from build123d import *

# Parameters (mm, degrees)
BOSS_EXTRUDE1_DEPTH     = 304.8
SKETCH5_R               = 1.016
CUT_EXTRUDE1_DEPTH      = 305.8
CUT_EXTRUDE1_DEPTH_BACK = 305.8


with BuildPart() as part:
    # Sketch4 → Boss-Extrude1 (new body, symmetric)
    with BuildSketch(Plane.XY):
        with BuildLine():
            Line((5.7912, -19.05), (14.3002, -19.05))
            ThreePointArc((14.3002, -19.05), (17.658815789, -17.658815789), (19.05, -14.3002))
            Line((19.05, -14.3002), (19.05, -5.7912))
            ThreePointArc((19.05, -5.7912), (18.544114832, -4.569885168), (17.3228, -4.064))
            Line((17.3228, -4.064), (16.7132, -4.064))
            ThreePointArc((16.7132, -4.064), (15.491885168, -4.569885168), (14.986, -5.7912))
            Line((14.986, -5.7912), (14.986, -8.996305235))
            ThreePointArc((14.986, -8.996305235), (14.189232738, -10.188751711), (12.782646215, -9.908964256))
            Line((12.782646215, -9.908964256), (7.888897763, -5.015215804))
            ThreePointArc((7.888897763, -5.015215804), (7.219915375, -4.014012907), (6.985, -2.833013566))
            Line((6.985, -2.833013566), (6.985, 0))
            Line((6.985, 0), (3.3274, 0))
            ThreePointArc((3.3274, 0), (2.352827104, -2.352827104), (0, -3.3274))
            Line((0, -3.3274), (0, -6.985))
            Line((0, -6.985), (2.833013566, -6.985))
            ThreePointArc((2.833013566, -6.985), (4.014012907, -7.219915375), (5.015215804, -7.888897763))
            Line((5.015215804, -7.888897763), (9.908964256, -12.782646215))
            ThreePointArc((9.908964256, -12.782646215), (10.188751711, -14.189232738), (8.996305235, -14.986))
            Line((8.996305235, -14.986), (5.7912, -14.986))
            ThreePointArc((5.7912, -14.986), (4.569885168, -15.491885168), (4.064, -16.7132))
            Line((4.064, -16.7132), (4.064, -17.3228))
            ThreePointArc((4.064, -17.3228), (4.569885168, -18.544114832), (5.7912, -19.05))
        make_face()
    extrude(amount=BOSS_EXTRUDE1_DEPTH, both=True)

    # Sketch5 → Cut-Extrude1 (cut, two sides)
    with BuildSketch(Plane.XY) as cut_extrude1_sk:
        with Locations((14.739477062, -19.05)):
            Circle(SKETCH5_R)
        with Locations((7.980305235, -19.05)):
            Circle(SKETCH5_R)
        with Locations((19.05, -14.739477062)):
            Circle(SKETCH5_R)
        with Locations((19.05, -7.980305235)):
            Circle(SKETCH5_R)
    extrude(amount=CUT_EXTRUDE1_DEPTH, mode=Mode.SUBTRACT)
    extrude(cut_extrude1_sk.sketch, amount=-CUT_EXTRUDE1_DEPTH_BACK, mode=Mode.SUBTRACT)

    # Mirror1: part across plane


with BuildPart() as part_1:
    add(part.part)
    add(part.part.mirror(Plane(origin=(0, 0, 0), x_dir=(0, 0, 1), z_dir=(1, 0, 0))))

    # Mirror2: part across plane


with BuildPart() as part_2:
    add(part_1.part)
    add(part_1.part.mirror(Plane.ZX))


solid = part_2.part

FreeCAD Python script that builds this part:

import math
import FreeCAD as App
import Part
import Sketcher

V = App.Vector
Q = App.Units.Quantity

doc = App.newDocument("Part")
params = doc.addObject("Spreadsheet::Sheet", "Params")
for row, (alias, value) in enumerate([
    ("sketch1_radius", "0.187 in"),
    ("sketch1_radius2", "0.068 in"),
    ("sketch1_radius3", "0.131 in"),
    ("sketch1_width", "0.335 in"),
    ("sketch1_width2", "0.024 in"),
    ("pad1_length", "24 in"),
    ("sketch2_diameter", "0.08 in"),
], start=1):
    params.set(f"A{row}", alias)
    params.set(f"B{row}", "=" + value)
    params.setAlias(f"B{row}", alias)

body = doc.addObject("PartDesign::Body", "Body")

sketch1 = doc.addObject("Sketcher::SketchObject", "Sketch")
body.addObject(sketch1)
sketch1.AttachmentSupport = (doc.XY_Plane, [""])
sketch1.MapMode = "FlatFace"
sketch1.addGeometry(Part.LineSegment(V(5.8, -19.1, 0), V(14.3, -19.1, 0)), False)
sketch1.addGeometry(Part.ArcOfCircle(Part.Circle(V(14.3, -14.3, 0), V(0, 0, 1), 4.7), math.radians(-90), math.radians(0)), False)
sketch1.addGeometry(Part.LineSegment(V(19.1, -14.3, 0), V(19.1, -5.8, 0)), False)
sketch1.addGeometry(Part.ArcOfCircle(Part.Circle(V(17.3, -5.8, 0), V(0, 0, 1), 1.7), math.radians(0), math.radians(90)), False)
sketch1.addGeometry(Part.LineSegment(V(17.3, -4.1, 0), V(16.7, -4.1, 0)), False)
sketch1.addGeometry(Part.ArcOfCircle(Part.Circle(V(16.7, -5.8, 0), V(0, 0, 1), 1.7), math.radians(90), math.radians(180)), False)
sketch1.addGeometry(Part.LineSegment(V(15, -5.8, 0), V(15, -9, 0)), False)
sketch1.addGeometry(Part.ArcOfCircle(Part.Circle(V(13.7, -9, 0), V(0, 0, 1), 1.3), math.radians(-135), math.radians(0)), False)
sketch1.addGeometry(Part.LineSegment(V(12.8, -9.9, 0), V(7.9, -5, 0)), False)
sketch1.addGeometry(Part.ArcOfCircle(Part.Circle(V(10.1, -2.8, 0), V(0, 0, 1), 3.1), math.radians(-180), math.radians(-135)), False)
sketch1.addGeometry(Part.LineSegment(V(7, -2.8, 0), V(7, 0, 0)), False)
sketch1.addGeometry(Part.LineSegment(V(7, 0, 0), V(3.3, 0, 0)), False)
sketch1.addGeometry(Part.ArcOfCircle(Part.Circle(V(0, 0, 0), V(0, 0, 1), 3.3), math.radians(-90), math.radians(0)), False)
sketch1.addGeometry(Part.LineSegment(V(0, -3.3, 0), V(0, -7, 0)), False)
sketch1.addGeometry(Part.LineSegment(V(0, -7, 0), V(2.8, -7, 0)), False)
sketch1.addGeometry(Part.ArcOfCircle(Part.Circle(V(2.8, -10.1, 0), V(0, 0, 1), 3.1), math.radians(45), math.radians(90)), False)
sketch1.addGeometry(Part.LineSegment(V(5, -7.9, 0), V(9.9, -12.8, 0)), False)
sketch1.addGeometry(Part.ArcOfCircle(Part.Circle(V(9, -13.7, 0), V(0, 0, 1), 1.3), math.radians(-90), math.radians(45)), False)
sketch1.addGeometry(Part.LineSegment(V(9, -15, 0), V(5.8, -15, 0)), False)
sketch1.addGeometry(Part.ArcOfCircle(Part.Circle(V(5.8, -16.7, 0), V(0, 0, 1), 1.7), math.radians(90), math.radians(180)), False)
sketch1.addGeometry(Part.LineSegment(V(4.1, -16.7, 0), V(4.1, -17.3, 0)), False)
sketch1.addGeometry(Part.ArcOfCircle(Part.Circle(V(5.8, -17.3, 0), V(0, 0, 1), 1.7), math.radians(-180), math.radians(-90)), False)
sketch1.addConstraint(Sketcher.Constraint("Tangent", 0, 2, 1, 1))
sketch1.addConstraint(Sketcher.Constraint("Tangent", 1, 2, 2, 1))
sketch1.addConstraint(Sketcher.Constraint("Tangent", 2, 2, 3, 1))
sketch1.addConstraint(Sketcher.Constraint("Tangent", 3, 2, 4, 1))
sketch1.addConstraint(Sketcher.Constraint("Tangent", 4, 2, 5, 1))
sketch1.addConstraint(Sketcher.Constraint("Tangent", 5, 2, 6, 1))
sketch1.addConstraint(Sketcher.Constraint("Tangent", 6, 2, 7, 2))
sketch1.addConstraint(Sketcher.Constraint("Tangent", 7, 1, 8, 1))
sketch1.addConstraint(Sketcher.Constraint("Tangent", 8, 2, 9, 2))
sketch1.addConstraint(Sketcher.Constraint("Tangent", 9, 1, 10, 1))
sketch1.addConstraint(Sketcher.Constraint("Coincident", 10, 2, 11, 1))
sketch1.addConstraint(Sketcher.Constraint("Coincident", 11, 2, 12, 2))
sketch1.addConstraint(Sketcher.Constraint("Coincident", 12, 1, 13, 1))
sketch1.addConstraint(Sketcher.Constraint("Coincident", 13, 2, 14, 1))
sketch1.addConstraint(Sketcher.Constraint("Tangent", 14, 2, 15, 2))
sketch1.addConstraint(Sketcher.Constraint("Tangent", 15, 1, 16, 1))
sketch1.addConstraint(Sketcher.Constraint("Tangent", 16, 2, 17, 2))
sketch1.addConstraint(Sketcher.Constraint("Tangent", 17, 1, 18, 1))
sketch1.addConstraint(Sketcher.Constraint("Tangent", 18, 2, 19, 1))
sketch1.addConstraint(Sketcher.Constraint("Tangent", 19, 2, 20, 1))
sketch1.addConstraint(Sketcher.Constraint("Tangent", 20, 2, 21, 1))
sketch1.addConstraint(Sketcher.Constraint("Tangent", 21, 2, 0, 1))
sketch1.addConstraint(Sketcher.Constraint("Horizontal", 0))
sketch1.addConstraint(Sketcher.Constraint("Vertical", 2))
sketch1.addConstraint(Sketcher.Constraint("Horizontal", 4))
sketch1.addConstraint(Sketcher.Constraint("Vertical", 6))
sketch1.addConstraint(Sketcher.Constraint("Vertical", 10))
sketch1.addConstraint(Sketcher.Constraint("Horizontal", 11))
sketch1.addConstraint(Sketcher.Constraint("Vertical", 13))
sketch1.addConstraint(Sketcher.Constraint("Horizontal", 14))
sketch1.addConstraint(Sketcher.Constraint("Horizontal", 18))
sketch1.addConstraint(Sketcher.Constraint("Vertical", 20))
sketch1.addConstraint(Sketcher.Constraint("Coincident", 12, 3, -1, 1))
sketch1.addConstraint(Sketcher.Constraint("Equal", 3, 5))
sketch1.addConstraint(Sketcher.Constraint("Equal", 9, 15))
sketch1.addConstraint(Sketcher.Constraint("Equal", 7, 17))
sketch1.addConstraint(Sketcher.Constraint("Equal", 5, 19))
sketch1.addConstraint(Sketcher.Constraint("Equal", 19, 21))
sketch1.addConstraint(Sketcher.Constraint("PointOnObject", 10, 2, -1))
sketch1.addConstraint(Sketcher.Constraint("PointOnObject", 12, 1, -2))
sketch1.addConstraint(Sketcher.Constraint("Parallel", 8, 16))
sketch1.addConstraint(Sketcher.Constraint("Equal", 0, 2))
sketch1.addConstraint(Sketcher.Constraint("Equal", 18, 6))
sketch1.addConstraint(Sketcher.Constraint("Equal", 14, 10))
sketch1.addConstraint(Sketcher.Constraint("Equal", 11, 13))
sketch1.addConstraint(Sketcher.Constraint("Equal", 4, 20))
sketch1.addConstraint(Sketcher.Constraint("Equal", 8, 16))
sketch1.addConstraint(Sketcher.Constraint("Radius", 1, Q("0.187 in")))
sketch1.addConstraint(Sketcher.Constraint("Radius", 3, Q("0.068 in")))
sketch1.addConstraint(Sketcher.Constraint("Radius", 12, Q("0.131 in")))
sketch1.addConstraint(Sketcher.Constraint("Radius", 9, Q("0.1215 in")))
sketch1.addConstraint(Sketcher.Constraint("DistanceX", 0, 1, 0, 2, Q("0.335 in")))
sketch1.addConstraint(Sketcher.Constraint("DistanceX", 4, 2, 4, 1, Q("0.024 in")))
sketch1.addConstraint(Sketcher.Constraint("DistanceX", 11, 2, 11, 1, Q("0.144 in")))
sketch1.addConstraint(Sketcher.Constraint("DistanceY", 0, 2, -1, 1, Q("0.75 in")))
sketch1.addConstraint(Sketcher.Constraint("DistanceX", 17, 3, 7, 3, Q("0.185 in")))
sketch1.addConstraint(Sketcher.Constraint("Radius", 7, Q("1.290695 mm")))
sketch1.setExpression("Constraints[47]", "Params.sketch1_radius")
sketch1.setExpression("Constraints[48]", "Params.sketch1_radius2")
sketch1.setExpression("Constraints[49]", "Params.sketch1_radius3")
sketch1.setExpression("Constraints[51]", "Params.sketch1_width")
sketch1.setExpression("Constraints[52]", "Params.sketch1_width2")
pad1 = doc.addObject("PartDesign::Pad", "Pad")
body.addObject(pad1)
pad1.Profile = sketch1
pad1.setExpression("Length", "Params.pad1_length")
pad1.Midplane = True

sketch2 = doc.addObject("Sketcher::SketchObject", "Sketch001")
body.addObject(sketch2)
sketch2.AttachmentSupport = (doc.XY_Plane, [""])
sketch2.MapMode = "FlatFace"
sketch2.addGeometry(Part.Circle(V(14.7, -19.1, 0), V(0, 0, 1), 1), False)
sketch2.addGeometry(Part.Circle(V(8, -19.1, 0), V(0, 0, 1), 1), False)
sketch2.addGeometry(Part.Circle(V(19.1, -14.7, 0), V(0, 0, 1), 1), False)
sketch2.addGeometry(Part.Circle(V(19.1, -8, 0), V(0, 0, 1), 1), False)
sketch2.addConstraint(Sketcher.Constraint("Equal", 0, 1))
sketch2.addConstraint(Sketcher.Constraint("Equal", 1, 2))
sketch2.addConstraint(Sketcher.Constraint("Equal", 2, 3))
sketch2.addConstraint(Sketcher.Constraint("Horizontal", 0, 3, 1, 3))
sketch2.addConstraint(Sketcher.Constraint("Vertical", 2, 3, 3, 3))
sketch2.addConstraint(Sketcher.Constraint("Diameter", 0, Q("0.08 in")))
sketch2.addConstraint(Sketcher.Constraint("DistanceY", 0, 3, -1, 1, Q("0.75 in")))
sketch2.addConstraint(Sketcher.Constraint("DistanceX", -1, 1, 2, 3, Q("0.75 in")))
sketch2.addConstraint(Sketcher.Constraint("DistanceX", 1, 3, 0, 3, Q("6.759172 mm")))
sketch2.addConstraint(Sketcher.Constraint("DistanceY", 2, 3, 3, 3, Q("6.759172 mm")))
sketch2.addConstraint(Sketcher.Constraint("DistanceX", -1, 1, 0, 3, Q("14.739477 mm")))
sketch2.addConstraint(Sketcher.Constraint("DistanceY", 2, 3, -1, 1, Q("14.739477 mm")))
sketch2.setExpression("Constraints[5]", "Params.sketch2_diameter")
pocket1 = doc.addObject("PartDesign::Pocket", "Pocket")
body.addObject(pocket1)
pocket1.Profile = sketch2
pocket1.Type = "ThroughAll"
pocket1.Midplane = True
body2 = doc.addObject("PartDesign::Body", "Body001")
doc.recompute()

body2.BaseFeature = body
doc.recompute()

mirroring = doc.addObject("Part::Mirroring", "Mirroring")
mirroring.Source = body
mirroring.Base = V(0, 0, 0)
mirroring.Normal = V(1, 0, 0)
body3 = doc.addObject("PartDesign::Body", "Body002")
body3.BaseFeature = mirroring
boolean = doc.addObject("PartDesign::Boolean", "Boolean")
body2.addObject(boolean)
boolean.Type = "Fuse"
boolean.addObjects([body3])
doc.recompute()
body4 = doc.addObject("PartDesign::Body", "Body003")
doc.recompute()

body4.BaseFeature = body2
doc.recompute()

mirroring2 = doc.addObject("Part::Mirroring", "Mirroring001")
mirroring2.Source = body2
mirroring2.Base = V(0, 0, 0)
mirroring2.Normal = V(0, 1, 0)
body5 = doc.addObject("PartDesign::Body", "Body004")
body5.BaseFeature = mirroring2
boolean2 = doc.addObject("PartDesign::Boolean", "Boolean001")
body4.addObject(boolean2)
boolean2.Type = "Fuse"
boolean2.addObjects([body5])
doc.recompute()
mirroring.Visibility = False
mirroring2.Visibility = False

doc.recompute()
